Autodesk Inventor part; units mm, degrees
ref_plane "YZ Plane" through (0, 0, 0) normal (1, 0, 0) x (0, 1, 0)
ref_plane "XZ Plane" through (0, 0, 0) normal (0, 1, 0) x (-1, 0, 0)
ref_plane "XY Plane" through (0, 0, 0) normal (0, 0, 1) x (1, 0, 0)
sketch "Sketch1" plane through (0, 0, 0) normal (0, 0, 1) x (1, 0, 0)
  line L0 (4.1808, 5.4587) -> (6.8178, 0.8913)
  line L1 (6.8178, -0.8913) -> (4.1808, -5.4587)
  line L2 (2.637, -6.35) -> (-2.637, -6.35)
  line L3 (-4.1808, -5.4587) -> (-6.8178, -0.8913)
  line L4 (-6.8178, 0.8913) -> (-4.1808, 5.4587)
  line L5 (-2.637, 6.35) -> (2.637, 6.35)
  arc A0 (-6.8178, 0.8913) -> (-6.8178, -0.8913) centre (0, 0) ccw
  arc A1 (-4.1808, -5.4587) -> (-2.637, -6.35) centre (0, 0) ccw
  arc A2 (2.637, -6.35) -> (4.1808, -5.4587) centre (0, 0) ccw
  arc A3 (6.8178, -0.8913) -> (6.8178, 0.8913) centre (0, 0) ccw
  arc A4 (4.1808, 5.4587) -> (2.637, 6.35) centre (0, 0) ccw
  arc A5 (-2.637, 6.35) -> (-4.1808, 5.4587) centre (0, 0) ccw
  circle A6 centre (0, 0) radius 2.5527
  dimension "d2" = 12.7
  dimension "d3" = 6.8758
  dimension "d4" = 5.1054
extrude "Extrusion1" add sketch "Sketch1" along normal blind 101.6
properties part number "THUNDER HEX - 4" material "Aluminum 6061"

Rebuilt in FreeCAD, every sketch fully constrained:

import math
import FreeCAD as App
import Part
import Sketcher
from FreeCAD import Vector
Q = App.Units.Quantity

doc = App.newDocument("Part")
params = doc.addObject("Spreadsheet::Sheet", "Params")
for row, (alias, value) in enumerate([
    ("sketch1_diameter", "0.201 in"),
    ("pad1_length", "4 in"),
], start=1):
    params.set(f"A{row}", alias)
    params.set(f"B{row}", "=" + value)
    params.setAlias(f"B{row}", alias)

body = doc.addObject("PartDesign::Body", "Body")

# Sketch on XY plane
sketch1 = body.newObject("Sketcher::SketchObject", "Sketch")
sketch1.AttachmentSupport = (doc.getObject("XY_Plane"), [""])
sketch1.MapMode = "FlatFace"
sketch1.addGeometry([
    Part.LineSegment(Vector(6.8178, 0.8913, 0), Vector(4.1808, 5.4587, 0)),  # 0
    Part.ArcOfCircle(Part.Circle(Vector(0, 0, 0), Vector(0, 0, 1), 6.875774), math.radians(52.551618), math.radians(67.448081)),  # 1
    Part.LineSegment(Vector(2.637, 6.35, 0), Vector(-2.637, 6.35, 0)),  # 2
    Part.ArcOfCircle(Part.Circle(Vector(0, 0, 0), Vector(0, 0, 1), 6.875814), math.radians(112.551919), math.radians(127.448382)),  # 3
    Part.LineSegment(Vector(-4.1808, 5.4587, 0), Vector(-6.8178, 0.8913, 0)),  # 4
    Part.ArcOfCircle(Part.Circle(Vector(0, 0, 0), Vector(0, 0, 1), 6.875814), math.radians(172.551886), math.radians(187.448114)),  # 5
    Part.LineSegment(Vector(-6.8178, -0.8913, 0), Vector(-4.1808, -5.4587, 0)),  # 6
    Part.ArcOfCircle(Part.Circle(Vector(0, 0, 0), Vector(0, 0, 1), 6.875774), math.radians(-127.448382), math.radians(-112.551919)),  # 7
    Part.LineSegment(Vector(-2.637, -6.35, 0), Vector(2.637, -6.35, 0)),  # 8
    Part.ArcOfCircle(Part.Circle(Vector(0, 0, 0), Vector(0, 0, 1), 6.875814), math.radians(-67.448081), math.radians(-52.551618)),  # 9
    Part.LineSegment(Vector(4.1808, -5.4587, 0), Vector(6.8178, -0.8913, 0)),  # 10
    Part.ArcOfCircle(Part.Circle(Vector(0, 0, 0), Vector(0, 0, 1), 6.875814), math.radians(-7.448114), math.radians(7.448114)),  # 11
    Part.Circle(Vector(0, 0, 0), Vector(0, 0, 1), 2.5527),  # 12
], False)
sketch1.addConstraint([
    Sketcher.Constraint("Coincident", 0, 2, 1, 1),
    Sketcher.Constraint("Coincident", 1, 2, 2, 1),
    Sketcher.Constraint("Coincident", 2, 2, 3, 1),
    Sketcher.Constraint("Coincident", 3, 2, 4, 1),
    Sketcher.Constraint("Coincident", 4, 2, 5, 1),
    Sketcher.Constraint("Coincident", 5, 2, 6, 1),
    Sketcher.Constraint("Coincident", 6, 2, 7, 1),
    Sketcher.Constraint("Coincident", 7, 2, 8, 1),
    Sketcher.Constraint("Coincident", 8, 2, 9, 1),
    Sketcher.Constraint("Coincident", 9, 2, 10, 1),
    Sketcher.Constraint("Coincident", 10, 2, 11, 1),
    Sketcher.Constraint("Coincident", 11, 2, 0, 1),
    Sketcher.Constraint("Horizontal", 2),
    Sketcher.Constraint("Horizontal", 8),
    Sketcher.Constraint("Coincident", 1, 3, -1, 1),
    Sketcher.Constraint("Coincident", 3, 3, -1, 1),
    Sketcher.Constraint("Coincident", 5, 3, -1, 1),
    Sketcher.Constraint("Coincident", 7, 3, -1, 1),
    Sketcher.Constraint("Coincident", 9, 3, -1, 1),
    Sketcher.Constraint("Coincident", 11, 3, -1, 1),
    Sketcher.Constraint("Coincident", 12, 3, -1, 1),
    Sketcher.Constraint("Equal", 1, 3),
    Sketcher.Constraint("Equal", 3, 5),
    Sketcher.Constraint("Equal", 5, 7),
    Sketcher.Constraint("Equal", 7, 9),
    Sketcher.Constraint("Equal", 9, 11),
    Sketcher.Constraint("Parallel", 0, 6),
    Sketcher.Constraint("Parallel", 4, 10),
    Sketcher.Constraint("Horizontal", 0, 2, 3, 2),
    Sketcher.Constraint("Horizontal", 6, 2, 9, 2),
    Sketcher.Constraint("Horizontal", 5, 2, 10, 2),
    Sketcher.Constraint("Vertical", 4, 2, 5, 2),
    Sketcher.Constraint("Vertical", 2, 2, 7, 2),
    Sketcher.Constraint("Diameter", 12, Q("0.201 in")),
    Sketcher.Constraint("Radius", 1, Q("0.2707 in")),
    Sketcher.Constraint("Angle", 0, Q("120 deg")),
    Sketcher.Constraint("DistanceY", -1, 1, 1, 2, Q("0.25 in")),
    Sketcher.Constraint("DistanceY", 5, 2, 3, 2, Q("0.25 in")),
])
sketch1.setExpression("Constraints[33]", "Params.sketch1_diameter")
pad1 = body.newObject("PartDesign::Pad", "Pad")
pad1.Profile = sketch1
pad1.setExpression("Length", "Params.pad1_length")

doc.recompute()
